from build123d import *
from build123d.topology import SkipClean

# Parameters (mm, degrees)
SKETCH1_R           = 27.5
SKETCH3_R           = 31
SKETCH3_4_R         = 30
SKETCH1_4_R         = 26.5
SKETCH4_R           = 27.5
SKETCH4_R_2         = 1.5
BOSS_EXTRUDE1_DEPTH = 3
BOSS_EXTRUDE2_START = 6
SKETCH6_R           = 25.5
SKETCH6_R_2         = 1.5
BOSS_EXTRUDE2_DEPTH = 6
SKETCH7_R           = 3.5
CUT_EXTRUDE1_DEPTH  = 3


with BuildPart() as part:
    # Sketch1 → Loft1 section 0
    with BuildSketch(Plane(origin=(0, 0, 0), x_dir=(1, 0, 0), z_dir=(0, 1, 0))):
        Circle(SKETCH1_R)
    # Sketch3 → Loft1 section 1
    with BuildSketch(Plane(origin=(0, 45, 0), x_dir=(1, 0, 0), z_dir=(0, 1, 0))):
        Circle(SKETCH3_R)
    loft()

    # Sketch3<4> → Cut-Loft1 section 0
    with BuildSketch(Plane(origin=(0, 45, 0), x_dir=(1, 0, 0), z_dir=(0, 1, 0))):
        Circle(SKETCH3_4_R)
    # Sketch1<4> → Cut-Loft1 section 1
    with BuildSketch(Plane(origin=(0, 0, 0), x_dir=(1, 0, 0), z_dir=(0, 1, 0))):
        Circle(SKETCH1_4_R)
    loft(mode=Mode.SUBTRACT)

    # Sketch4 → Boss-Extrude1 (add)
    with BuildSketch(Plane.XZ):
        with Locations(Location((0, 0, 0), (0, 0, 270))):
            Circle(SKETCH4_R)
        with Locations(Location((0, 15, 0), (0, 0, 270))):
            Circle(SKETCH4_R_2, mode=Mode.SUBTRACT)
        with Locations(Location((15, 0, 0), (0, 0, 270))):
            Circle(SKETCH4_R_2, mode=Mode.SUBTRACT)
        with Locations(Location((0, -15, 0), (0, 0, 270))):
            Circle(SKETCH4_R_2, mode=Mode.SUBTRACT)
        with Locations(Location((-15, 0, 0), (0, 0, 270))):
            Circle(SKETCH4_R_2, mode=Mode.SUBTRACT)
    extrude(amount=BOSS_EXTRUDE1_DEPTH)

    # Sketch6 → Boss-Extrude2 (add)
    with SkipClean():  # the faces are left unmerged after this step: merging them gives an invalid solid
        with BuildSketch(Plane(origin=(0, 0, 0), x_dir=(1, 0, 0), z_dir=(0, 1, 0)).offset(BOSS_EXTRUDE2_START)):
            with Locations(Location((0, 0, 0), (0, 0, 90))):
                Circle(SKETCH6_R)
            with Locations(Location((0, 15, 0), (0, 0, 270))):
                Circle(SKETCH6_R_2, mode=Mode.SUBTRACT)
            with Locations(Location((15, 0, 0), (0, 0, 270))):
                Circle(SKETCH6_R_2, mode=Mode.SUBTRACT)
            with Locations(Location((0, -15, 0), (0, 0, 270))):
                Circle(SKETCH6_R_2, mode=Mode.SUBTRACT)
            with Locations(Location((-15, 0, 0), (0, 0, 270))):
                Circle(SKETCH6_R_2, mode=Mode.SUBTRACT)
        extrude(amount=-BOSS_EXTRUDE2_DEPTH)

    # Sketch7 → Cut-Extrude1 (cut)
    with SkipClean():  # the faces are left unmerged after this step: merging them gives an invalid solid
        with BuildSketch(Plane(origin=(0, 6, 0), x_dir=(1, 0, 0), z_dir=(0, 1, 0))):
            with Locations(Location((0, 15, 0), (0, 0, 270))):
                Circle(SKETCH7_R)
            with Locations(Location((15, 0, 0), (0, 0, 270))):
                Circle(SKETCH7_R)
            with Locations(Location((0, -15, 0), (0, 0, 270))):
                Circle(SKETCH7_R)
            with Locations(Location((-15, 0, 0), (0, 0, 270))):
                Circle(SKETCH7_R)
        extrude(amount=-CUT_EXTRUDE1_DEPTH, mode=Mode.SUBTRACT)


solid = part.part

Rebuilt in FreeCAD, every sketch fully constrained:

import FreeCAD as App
import Part
import Sketcher
from FreeCAD import Vector

doc = App.newDocument("Part")
body = doc.addObject("PartDesign::Body", "Body")

sketch1 = body.newObject("Sketcher::SketchObject", "Sketch")
sketch1.AttachmentSupport = (doc.getObject("XZ_Plane"), [""])
sketch1.MapMode = "FlatFace"
sketch1.addGeometry(Part.Circle(Vector(0, 0, 0), Vector(0, 0, 1), 27.5), False)
sketch1.addConstraint([
    Sketcher.Constraint("Coincident", 0, 3, -1, 1),
    Sketcher.Constraint("Diameter", 0, 55.0),
])

sketch2 = body.newObject("Sketcher::SketchObject", "Sketch001")
sketch2.AttachmentSupport = (doc.getObject("XZ_Plane"), [""])
sketch2.MapMode = "FlatFace"
sketch2.AttachmentOffset = App.Placement(Vector(0, 0, -45), App.Rotation())
sketch2.addGeometry(Part.Circle(Vector(0, 0, 0), Vector(0, 0, 1), 31), False)
sketch2.addConstraint([
    Sketcher.Constraint("Coincident", 0, 3, -1, 1),
    Sketcher.Constraint("Diameter", 0, 62.0),
])

additiveloft = body.newObject("PartDesign::AdditiveLoft", "AdditiveLoft")
additiveloft.Profile = sketch1
additiveloft.Sections = [sketch2]

sketch3 = body.newObject("Sketcher::SketchObject", "Sketch002")
sketch3.AttachmentSupport = (doc.getObject("XZ_Plane"), [""])
sketch3.MapMode = "FlatFace"
sketch3.AttachmentOffset = App.Placement(Vector(0, 0, -45), App.Rotation())
sketch3.addGeometry(Part.Circle(Vector(0, 0, 0), Vector(0, 0, 1), 30), False)
sketch3.addConstraint([
    Sketcher.Constraint("Coincident", 0, 3, -1, 1),
    Sketcher.Constraint("Diameter", 0, 60.0),
])

sketch4 = body.newObject("Sketcher::SketchObject", "Sketch003")
sketch4.AttachmentSupport = (doc.getObject("XZ_Plane"), [""])
sketch4.MapMode = "FlatFace"
sketch4.addGeometry(Part.Circle(Vector(0, 0, 0), Vector(0, 0, 1), 26.5), False)
sketch4.addConstraint([
    Sketcher.Constraint("Coincident", 0, 3, -1, 1),
    Sketcher.Constraint("Diameter", 0, 53.0),
])

subtractiveloft = body.newObject("PartDesign::SubtractiveLoft", "SubtractiveLoft")
subtractiveloft.Profile = sketch3
subtractiveloft.Sections = [sketch4]

sketch5 = body.newObject("Sketcher::SketchObject", "Sketch004")
sketch5.AttachmentSupport = (doc.getObject("XZ_Plane"), [""])
sketch5.MapMode = "FlatFace"
sketch5.addGeometry([
    Part.Circle(Vector(0, 0, 0), Vector(0, 0, 1), 27.5),
    Part.Circle(Vector(0, 15, 0), Vector(0, 0, 1), 1.5),
    Part.Circle(Vector(-15, 0, 0), Vector(0, 0, 1), 1.5),
    Part.Circle(Vector(0, -15, 0), Vector(0, 0, 1), 1.5),
    Part.Circle(Vector(15, 0, 0), Vector(0, 0, 1), 1.5),
], False)
sketch5.addConstraint([
    Sketcher.Constraint("Coincident", 0, 3, -1, 1),
    Sketcher.Constraint("Equal", 1, 2),
    Sketcher.Constraint("Equal", 2, 3),
    Sketcher.Constraint("Equal", 3, 4),
    Sketcher.Constraint("Symmetric", 1, 3, 3, 3, -1, 1),
    Sketcher.Constraint("Symmetric", 2, 3, 4, 3, -1, 1),
    Sketcher.Constraint("PointOnObject", 1, 3, -2),
    Sketcher.Constraint("PointOnObject", 2, 3, -1),
    Sketcher.Constraint("Diameter", 0, 55.0),
    Sketcher.Constraint("Diameter", 1, 3.0),
    Sketcher.Constraint("DistanceY", -1, 1, 1, 3, 15.0),
    Sketcher.Constraint("DistanceX", 2, 3, -1, 1, 15.0),
])
pad1 = body.newObject("PartDesign::Pad", "Pad")
pad1.Profile = sketch5
pad1.Length = 3

sketch6 = body.newObject("Sketcher::SketchObject", "Sketch005")
sketch6.AttachmentSupport = (doc.getObject("XZ_Plane"), [""])
sketch6.MapMode = "FlatFace"
sketch6.AttachmentOffset = App.Placement(Vector(0, 0, -6), App.Rotation())
sketch6.addGeometry([
    Part.Circle(Vector(0, 0, 0), Vector(0, 0, 1), 25.5),
    Part.Circle(Vector(0, 15, 0), Vector(0, 0, 1), 1.5),
    Part.Circle(Vector(15, 0, 0), Vector(0, 0, 1), 1.5),
    Part.Circle(Vector(-15, 0, 0), Vector(0, 0, 1), 1.5),
    Part.Circle(Vector(0, -15, 0), Vector(0, 0, 1), 1.5),
], False)
sketch6.addConstraint([
    Sketcher.Constraint("Coincident", 0, 3, -1, 1),
    Sketcher.Constraint("Equal", 1, 2),
    Sketcher.Constraint("Equal", 2, 3),
    Sketcher.Constraint("Equal", 3, 4),
    Sketcher.Constraint("Symmetric", 2, 3, 3, 3, -1, 1),
    Sketcher.Constraint("Symmetric", 1, 3, 4, 3, -1, 1),
    Sketcher.Constraint("PointOnObject", 1, 3, -2),
    Sketcher.Constraint("PointOnObject", 2, 3, -1),
    Sketcher.Constraint("Diameter", 0, 51.0),
    Sketcher.Constraint("Diameter", 1, 3.0),
    Sketcher.Constraint("DistanceY", -1, 1, 1, 3, 15.0),
    Sketcher.Constraint("DistanceX", -1, 1, 2, 3, 15.0),
])
pad2 = body.newObject("PartDesign::Pad", "Pad001")
pad2.Profile = sketch6
pad2.Length = 6

sketch7 = body.newObject("Sketcher::SketchObject", "Sketch006")
sketch7.AttachmentSupport = (doc.getObject("XZ_Plane"), [""])
sketch7.MapMode = "FlatFace"
sketch7.AttachmentOffset = App.Placement(Vector(0, 0, -6), App.Rotation())
sketch7.addGeometry([
    Part.Circle(Vector(0, -15, 0), Vector(0, 0, 1), 3.5),
    Part.Circle(Vector(15, 0, 0), Vector(0, 0, 1), 3.5),
    Part.Circle(Vector(0, 15, 0), Vector(0, 0, 1), 3.5),
    Part.Circle(Vector(-15, 0, 0), Vector(0, 0, 1), 3.5),
], False)
sketch7.addConstraint([
    Sketcher.Constraint("Equal", 0, 1),
    Sketcher.Constraint("Equal", 1, 2),
    Sketcher.Constraint("Equal", 2, 3),
    Sketcher.Constraint("Symmetric", 0, 3, 2, 3, -1, 1),
    Sketcher.Constraint("Symmetric", 1, 3, 3, 3, -1, 1),
    Sketcher.Constraint("PointOnObject", 0, 3, -2),
    Sketcher.Constraint("PointOnObject", 1, 3, -1),
    Sketcher.Constraint("Diameter", 0, 7.0),
    Sketcher.Constraint("DistanceY", 0, 3, -1, 1, 15.0),
    Sketcher.Constraint("DistanceX", -1, 1, 1, 3, 15.0),
])
pocket1 = body.newObject("PartDesign::Pocket", "Pocket")
pocket1.Profile = sketch7
pocket1.Length = 3
pocket1.Reversed = True

doc.recompute()
